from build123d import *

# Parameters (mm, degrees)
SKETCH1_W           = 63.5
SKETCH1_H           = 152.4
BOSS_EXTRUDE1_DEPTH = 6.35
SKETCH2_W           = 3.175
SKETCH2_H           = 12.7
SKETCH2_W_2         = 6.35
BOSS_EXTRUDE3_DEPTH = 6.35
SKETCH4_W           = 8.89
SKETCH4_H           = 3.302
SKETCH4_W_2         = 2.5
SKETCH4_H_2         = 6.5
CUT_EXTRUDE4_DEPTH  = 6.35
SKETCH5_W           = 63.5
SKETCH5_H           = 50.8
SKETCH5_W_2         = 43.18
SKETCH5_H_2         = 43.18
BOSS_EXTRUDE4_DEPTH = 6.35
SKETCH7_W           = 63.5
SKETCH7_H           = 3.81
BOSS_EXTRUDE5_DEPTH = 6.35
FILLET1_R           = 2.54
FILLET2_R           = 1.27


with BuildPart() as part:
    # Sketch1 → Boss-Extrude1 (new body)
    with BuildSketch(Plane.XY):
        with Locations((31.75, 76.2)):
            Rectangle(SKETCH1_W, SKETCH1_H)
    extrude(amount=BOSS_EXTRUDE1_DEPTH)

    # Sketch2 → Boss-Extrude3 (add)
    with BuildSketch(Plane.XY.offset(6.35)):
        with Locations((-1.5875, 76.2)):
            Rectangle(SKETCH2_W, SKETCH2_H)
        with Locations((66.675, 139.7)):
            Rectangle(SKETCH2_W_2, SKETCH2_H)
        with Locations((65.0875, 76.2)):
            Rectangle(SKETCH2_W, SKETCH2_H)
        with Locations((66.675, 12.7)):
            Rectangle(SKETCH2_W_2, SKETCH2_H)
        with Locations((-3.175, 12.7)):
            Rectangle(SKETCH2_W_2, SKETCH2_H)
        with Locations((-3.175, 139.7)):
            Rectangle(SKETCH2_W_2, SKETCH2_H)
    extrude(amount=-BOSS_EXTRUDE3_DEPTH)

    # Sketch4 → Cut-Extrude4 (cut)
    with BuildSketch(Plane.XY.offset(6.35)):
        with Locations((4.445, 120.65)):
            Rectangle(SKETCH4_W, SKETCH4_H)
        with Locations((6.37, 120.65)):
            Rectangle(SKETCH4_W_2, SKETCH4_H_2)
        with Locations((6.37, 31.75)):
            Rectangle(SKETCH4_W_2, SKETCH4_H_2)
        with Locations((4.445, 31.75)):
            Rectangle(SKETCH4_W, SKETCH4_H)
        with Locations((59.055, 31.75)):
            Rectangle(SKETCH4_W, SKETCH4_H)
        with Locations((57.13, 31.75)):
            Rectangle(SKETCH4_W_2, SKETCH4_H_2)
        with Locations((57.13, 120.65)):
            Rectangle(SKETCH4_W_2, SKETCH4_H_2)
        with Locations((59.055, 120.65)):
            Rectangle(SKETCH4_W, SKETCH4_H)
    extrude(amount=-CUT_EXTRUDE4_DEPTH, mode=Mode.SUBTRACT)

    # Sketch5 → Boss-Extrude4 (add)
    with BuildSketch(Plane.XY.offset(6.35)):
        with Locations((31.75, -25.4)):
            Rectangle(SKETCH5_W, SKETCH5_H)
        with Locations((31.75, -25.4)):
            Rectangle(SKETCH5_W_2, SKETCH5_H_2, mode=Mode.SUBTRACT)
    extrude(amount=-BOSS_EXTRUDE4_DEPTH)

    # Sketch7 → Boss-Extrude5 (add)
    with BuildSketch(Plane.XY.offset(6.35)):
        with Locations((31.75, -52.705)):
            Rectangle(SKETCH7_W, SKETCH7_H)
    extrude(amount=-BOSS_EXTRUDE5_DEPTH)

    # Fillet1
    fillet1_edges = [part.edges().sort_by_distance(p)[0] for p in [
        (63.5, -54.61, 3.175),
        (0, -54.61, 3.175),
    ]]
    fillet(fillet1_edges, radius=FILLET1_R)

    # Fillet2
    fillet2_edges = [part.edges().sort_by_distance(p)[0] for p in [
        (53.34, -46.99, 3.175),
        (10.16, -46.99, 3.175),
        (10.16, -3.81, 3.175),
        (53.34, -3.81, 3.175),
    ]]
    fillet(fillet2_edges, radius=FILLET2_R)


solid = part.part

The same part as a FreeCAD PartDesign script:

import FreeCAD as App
import Part
import Sketcher
from FreeCAD import Vector
Q = App.Units.Quantity


def edges_at(feature, points):
    """Names of the edges that pass closest to the given points."""
    edges = feature.Shape.Edges
    near = lambda p: min(range(len(edges)), key=lambda i: edges[i].distToShape(Part.Vertex(*p))[0])
    return sorted({f"Edge{near(p) + 1}" for p in points})


def add_polygon(sketch, points):
    """Adds a closed chain of lines whose ends are joined by coincident constraints."""
    first, n = sketch.GeometryCount, len(points)
    for a, b in zip(points, points[1:] + points[:1]):
        sketch.addGeometry(Part.LineSegment(App.Vector(*a, 0), App.Vector(*b, 0)), False)
    for i in range(n):
        sketch.addConstraint(Sketcher.Constraint("Coincident", first + i, 2, first + (i + 1) % n, 1))

doc = App.newDocument("Part")
body = doc.addObject("PartDesign::Body", "Body")

sketch1 = body.newObject("Sketcher::SketchObject", "Sketch")
sketch1.AttachmentSupport = (doc.getObject("XY_Plane"), [""])
sketch1.MapMode = "FlatFace"
add_polygon(sketch1, [(0, 152), (0, 0), (64, 0), (64, 152)])
sketch1.addConstraint([
    Sketcher.Constraint("Vertical", 0),
    Sketcher.Constraint("Horizontal", 1),
    Sketcher.Constraint("Vertical", 2),
    Sketcher.Constraint("Horizontal", 3),
    Sketcher.Constraint("Coincident", 0, 2, -1, 1),
    Sketcher.Constraint("DistanceY", 0, 2, 0, 1, Q("6 in")),
    Sketcher.Constraint("DistanceX", 1, 1, 1, 2, Q("2.5 in")),
])
pad1 = body.newObject("PartDesign::Pad", "Pad")
pad1.Profile = sketch1
pad1.Length = Q("0.25 in")

sketch2 = body.newObject("Sketcher::SketchObject", "Sketch001")
sketch2.AttachmentSupport = (doc.getObject("XY_Plane"), [""])
sketch2.MapMode = "FlatFace"
sketch2.AttachmentOffset = App.Placement(Vector(0, 0, 0.25 * 25.4), App.Rotation())
add_polygon(sketch2, [(-3.2, 82.5), (-3.2, 69.8), (0, 69.8), (0, 82.5)])
add_polygon(sketch2, [(63.5, 146.1), (63.5, 133.3), (69.8, 133.3), (69.8, 146.1)])
add_polygon(sketch2, [(63.5, 82.5), (63.5, 69.8), (66.7, 69.8), (66.7, 82.5)])
add_polygon(sketch2, [(63.5, 19.1), (63.5, 6.3), (69.8, 6.3), (69.8, 19.1)])
add_polygon(sketch2, [(-6.3, 19.1), (-6.3, 6.3), (0, 6.3), (0, 19.1)])
add_polygon(sketch2, [(-6.3, 146.1), (-6.3, 133.3), (0, 133.3), (0, 146.1)])
sketch2.addConstraint([
    Sketcher.Constraint("Vertical", 0),
    Sketcher.Constraint("Horizontal", 1),
    Sketcher.Constraint("Vertical", 2),
    Sketcher.Constraint("Horizontal", 3),
    Sketcher.Constraint("Vertical", 4),
    Sketcher.Constraint("Horizontal", 5),
    Sketcher.Constraint("Vertical", 6),
    Sketcher.Constraint("Horizontal", 7),
    Sketcher.Constraint("Vertical", 8),
    Sketcher.Constraint("Horizontal", 9),
    Sketcher.Constraint("Vertical", 10),
    Sketcher.Constraint("Horizontal", 11),
    Sketcher.Constraint("Vertical", 12),
    Sketcher.Constraint("Horizontal", 13),
    Sketcher.Constraint("Vertical", 14),
    Sketcher.Constraint("Horizontal", 15),
    Sketcher.Constraint("Vertical", 16),
    Sketcher.Constraint("Horizontal", 17),
    Sketcher.Constraint("Vertical", 18),
    Sketcher.Constraint("Horizontal", 19),
    Sketcher.Constraint("Vertical", 20),
    Sketcher.Constraint("Horizontal", 21),
    Sketcher.Constraint("Vertical", 22),
    Sketcher.Constraint("Horizontal", 23),
    Sketcher.Constraint("PointOnObject", 1, 2, -2),
    Sketcher.Constraint("PointOnObject", 17, 2, -2),
    Sketcher.Constraint("PointOnObject", 21, 2, -2),
    Sketcher.Constraint("Horizontal", 1, 2, 8, 2),
    Sketcher.Constraint("Horizontal", 3, 2, 10, 2),
    Sketcher.Constraint("Horizontal", 13, 2, 16, 2),
    Sketcher.Constraint("Horizontal", 15, 2, 18, 2),
    Sketcher.Constraint("Horizontal", 5, 2, 20, 2),
    Sketcher.Constraint("Horizontal", 7, 2, 22, 2),
    Sketcher.Constraint("Vertical", 7, 2, 8, 2),
    Sketcher.Constraint("Vertical", 11, 2, 12, 2),
    Sketcher.Constraint("Vertical", 6, 2, 13, 2),
    Sketcher.Constraint("Vertical", 19, 2, 20, 2),
    Sketcher.Constraint("Equal", 3, 9),
    Sketcher.Constraint("Equal", 15, 17),
    Sketcher.Constraint("Equal", 2, 4),
    Sketcher.Constraint("Equal", 10, 12),
    Sketcher.Constraint("DistanceY", 0, 2, 0, 1, Q("0.5 in")),
    Sketcher.Constraint("DistanceY", 2, 2, 4, 2, Q("2 in")),
    Sketcher.Constraint("DistanceY", 12, 2, 11, 2, Q("3 in")),
    Sketcher.Constraint("DistanceX", 16, 2, 13, 2, Q("3 in")),
    Sketcher.Constraint("DistanceX", 5, 1, 5, 2, Q("0.25 in")),
    Sketcher.Constraint("DistanceX", 1, 1, 1, 2, Q("0.125 in")),
    Sketcher.Constraint("DistanceY", -1, 1, 0, 2, Q("2.75 in")),
])
pad2 = body.newObject("PartDesign::Pad", "Pad001")
pad2.Profile = sketch2
pad2.Length = Q("0.25 in")
pad2.Reversed = True

sketch3 = body.newObject("Sketcher::SketchObject", "Sketch002")
sketch3.AttachmentSupport = (doc.getObject("XY_Plane"), [""])
sketch3.MapMode = "FlatFace"
sketch3.AttachmentOffset = App.Placement(Vector(0, 0, 0.25 * 25.4), App.Rotation())
add_polygon(sketch3, [(0, 122.3), (0, 119), (5.1, 119), (5.1, 117.4), (7.6, 117.4), (7.6, 119), (8.9, 119), (8.9, 122.3), (7.6, 122.3), (7.6, 123.9), (5.1, 123.9), (5.1, 122.3)])
add_polygon(sketch3, [(5.1, 30.1), (5.1, 28.5), (7.6, 28.5), (7.6, 30.1), (8.9, 30.1), (8.9, 33.4), (7.6, 33.4), (7.6, 35), (5.1, 35), (5.1, 33.4), (0, 33.4), (0, 30.1)])
add_polygon(sketch3, [(54.6, 33.4), (54.6, 30.1), (55.9, 30.1), (55.9, 28.5), (58.4, 28.5), (58.4, 30.1), (63.5, 30.1), (63.5, 33.4), (58.4, 33.4), (58.4, 35), (55.9, 35), (55.9, 33.4)])
add_polygon(sketch3, [(55.9, 119), (55.9, 117.4), (58.4, 117.4), (58.4, 119), (63.5, 119), (63.5, 122.3), (58.4, 122.3), (58.4, 123.9), (55.9, 123.9), (55.9, 122.3), (54.6, 122.3), (54.6, 119)])
sketch3.addConstraint([
    Sketcher.Constraint("Vertical", 0),
    Sketcher.Constraint("Horizontal", 1),
    Sketcher.Constraint("Vertical", 2),
    Sketcher.Constraint("Horizontal", 3),
    Sketcher.Constraint("Vertical", 4),
    Sketcher.Constraint("Horizontal", 5),
    Sketcher.Constraint("Vertical", 6),
    Sketcher.Constraint("Horizontal", 7),
    Sketcher.Constraint("Vertical", 8),
    Sketcher.Constraint("Horizontal", 9),
    Sketcher.Constraint("Vertical", 10),
    Sketcher.Constraint("Horizontal", 11),
    Sketcher.Constraint("Vertical", 12),
    Sketcher.Constraint("Horizontal", 13),
    Sketcher.Constraint("Vertical", 14),
    Sketcher.Constraint("Horizontal", 15),
    Sketcher.Constraint("Vertical", 16),
    Sketcher.Constraint("Horizontal", 17),
    Sketcher.Constraint("Vertical", 18),
    Sketcher.Constraint("Horizontal", 19),
    Sketcher.Constraint("Vertical", 20),
    Sketcher.Constraint("Horizontal", 21),
    Sketcher.Constraint("Vertical", 22),
    Sketcher.Constraint("Horizontal", 23),
    Sketcher.Constraint("Vertical", 24),
    Sketcher.Constraint("Horizontal", 25),
    Sketcher.Constraint("Vertical", 26),
    Sketcher.Constraint("Horizontal", 27),
    Sketcher.Constraint("Vertical", 28),
    Sketcher.Constraint("Horizontal", 29),
    Sketcher.Constraint("Vertical", 30),
    Sketcher.Constraint("Horizontal", 31),
    Sketcher.Constraint("Vertical", 32),
    Sketcher.Constraint("Horizontal", 33),
    Sketcher.Constraint("Vertical", 34),
    Sketcher.Constraint("Horizontal", 35),
    Sketcher.Constraint("Vertical", 36),
    Sketcher.Constraint("Horizontal", 37),
    Sketcher.Constraint("Vertical", 38),
    Sketcher.Constraint("Horizontal", 39),
    Sketcher.Constraint("Vertical", 40),
    Sketcher.Constraint("Horizontal", 41),
    Sketcher.Constraint("Vertical", 42),
    Sketcher.Constraint("Horizontal", 43),
    Sketcher.Constraint("Vertical", 44),
    Sketcher.Constraint("Horizontal", 45),
    Sketcher.Constraint("Vertical", 46),
    Sketcher.Constraint("Horizontal", 47),
    Sketcher.Constraint("PointOnObject", 0, 2, -2),
    Sketcher.Constraint("PointOnObject", 21, 2, -2),
    Sketcher.Constraint("Horizontal", 1, 2, 4, 2),
    Sketcher.Constraint("Horizontal", 7, 2, 10, 2),
    Sketcher.Constraint("Horizontal", 17, 2, 20, 2),
    Sketcher.Constraint("Horizontal", 15, 2, 22, 2),
    Sketcher.Constraint("Horizontal", 23, 2, 24, 2),
    Sketcher.Constraint("Horizontal", 13, 2, 26, 2),
    Sketcher.Constraint("Horizontal", 25, 2, 28, 2),
    Sketcher.Constraint("Horizontal", 21, 2, 30, 2),
    Sketcher.Constraint("Horizontal", 19, 2, 32, 2),
    Sketcher.Constraint("Horizontal", 31, 2, 34, 2),
    Sketcher.Constraint("Horizontal", 3, 2, 36, 2),
    Sketcher.Constraint("Horizontal", 5, 2, 38, 2),
    Sketcher.Constraint("Horizontal", 11, 2, 40, 2),
    Sketcher.Constraint("Horizontal", 9, 2, 42, 2),
    Sketcher.Constraint("Horizontal", 41, 2, 44, 2),
    Sketcher.Constraint("Horizontal", 39, 2, 46, 2),
    Sketcher.Constraint("Vertical", 4, 2, 7, 2),
    Sketcher.Constraint("Vertical", 2, 2, 9, 2),
    Sketcher.Constraint("Vertical", 10, 2, 12, 2),
    Sketcher.Constraint("Vertical", 8, 2, 13, 2),
    Sketcher.Constraint("Vertical", 6, 2, 15, 2),
    Sketcher.Constraint("Vertical", 14, 2, 17, 2),
    Sketcher.Constraint("Vertical", 12, 2, 19, 2),
    Sketcher.Constraint("Vertical", 28, 2, 31, 2),
    Sketcher.Constraint("Vertical", 26, 2, 33, 2),
    Sketcher.Constraint("Vertical", 34, 2, 36, 2),
    Sketcher.Constraint("Vertical", 32, 2, 37, 2),
    Sketcher.Constraint("Vertical", 30, 2, 39, 2),
    Sketcher.Constraint("Vertical", 38, 2, 41, 2),
    Sketcher.Constraint("Vertical", 36, 2, 43, 2),
    Sketcher.Constraint("Vertical", 35, 2, 45, 2),
    Sketcher.Constraint("Equal", 17, 25),
    Sketcher.Constraint("Equal", 19, 27),
    Sketcher.Constraint("Equal", 23, 29),
    Sketcher.Constraint("Equal", 4, 8),
    Sketcher.Constraint("Equal", 10, 12),
    Sketcher.Constraint("Equal", 6, 16),
    Sketcher.Constraint("Equal", 14, 18),
    Sketcher.Constraint("DistanceX", 5, 1, 5, 2, Q("0.05 in")),
    Sketcher.Constraint("DistanceY", 0, 2, 0, 1, Q("0.13 in")),
    Sketcher.Constraint("DistanceX", -1, 1, 3, 2, Q("0.3 in")),
    Sketcher.Constraint("DistanceX", -1, 1, 25, 2, Q("2.2 in")),
    Sketcher.Constraint("DistanceY", 12, 2, 2, 2, Q("3.5 in")),
    Sketcher.Constraint("DistanceY", -1, 1, 0, 2, Q("4.685 in")),
    Sketcher.Constraint("DistanceX", 1, 1, 1, 2, 5.12),
    Sketcher.Constraint("DistanceY", 2, 2, 2, 1, 1.599),
])
pocket1 = body.newObject("PartDesign::Pocket", "Pocket")
pocket1.Profile = sketch3
pocket1.Length = Q("0.25 in")

sketch4 = body.newObject("Sketcher::SketchObject", "Sketch003")
sketch4.AttachmentSupport = (doc.getObject("XY_Plane"), [""])
sketch4.MapMode = "FlatFace"
sketch4.AttachmentOffset = App.Placement(Vector(0, 0, 0.25 * 25.4), App.Rotation())
add_polygon(sketch4, [(0, 0), (0, -51), (64, -51), (64, 0)])
add_polygon(sketch4, [(53, -47), (10, -47), (10, -4), (53, -4)])
sketch4.addConstraint([
    Sketcher.Constraint("Vertical", 0),
    Sketcher.Constraint("Horizontal", 1),
    Sketcher.Constraint("Vertical", 2),
    Sketcher.Constraint("Horizontal", 3),
    Sketcher.Constraint("Horizontal", 4),
    Sketcher.Constraint("Vertical", 5),
    Sketcher.Constraint("Horizontal", 6),
    Sketcher.Constraint("Vertical", 7),
    Sketcher.Constraint("Coincident", 3, 2, -1, 1),
    Sketcher.Constraint("Equal", 6, 5),
    Sketcher.Constraint("DistanceY", 0, 2, 0, 1, Q("2 in")),
    Sketcher.Constraint("DistanceX", 1, 1, 1, 2, Q("2.5 in")),
    Sketcher.Constraint("DistanceX", 4, 2, 4, 1, Q("1.7 in")),
    Sketcher.Constraint("DistanceX", -1, 1, 4, 2, Q("0.4 in")),
    Sketcher.Constraint("DistanceY", 4, 2, -1, 1, Q("1.85 in")),
])
pad3 = body.newObject("PartDesign::Pad", "Pad002")
pad3.Profile = sketch4
pad3.Length = Q("0.25 in")
pad3.Reversed = True

sketch5 = body.newObject("Sketcher::SketchObject", "Sketch004")
sketch5.AttachmentSupport = (doc.getObject("XY_Plane"), [""])
sketch5.MapMode = "FlatFace"
sketch5.AttachmentOffset = App.Placement(Vector(0, 0, 0.25 * 25.4), App.Rotation())
add_polygon(sketch5, [(0, -50.8), (0, -54.6), (63.5, -54.6), (63.5, -50.8)])
sketch5.addConstraint([
    Sketcher.Constraint("Vertical", 0),
    Sketcher.Constraint("Horizontal", 1),
    Sketcher.Constraint("Vertical", 2),
    Sketcher.Constraint("Horizontal", 3),
    Sketcher.Constraint("PointOnObject", 0, 2, -2),
    Sketcher.Constraint("DistanceX", 1, 1, 1, 2, Q("2.5 in")),
    Sketcher.Constraint("DistanceY", 2, 2, -1, 1, Q("2 in")),
    Sketcher.Constraint("DistanceY", 0, 2, 0, 1, Q("0.15 in")),
])
pad4 = body.newObject("PartDesign::Pad", "Pad003")
pad4.Profile = sketch5
pad4.Length = Q("0.25 in")
pad4.Reversed = True
doc.recompute()

fillet = body.newObject("PartDesign::Fillet", "Fillet")
fillet.Base = (pad4, edges_at(pad4, [(63.5, -54.61, 3.175), (0, -54.61, 3.175)]))
fillet.Radius = Q("0.1 in")
doc.recompute()

fillet2 = body.newObject("PartDesign::Fillet", "Fillet001")
fillet2.Base = (fillet, edges_at(fillet, [
    (53.34, -46.99, 3.175),
    (10.16, -46.99, 3.175),
    (10.16, -3.81, 3.175),
    (53.34, -3.81, 3.175),
]))
fillet2.Radius = Q("0.05 in")

doc.recompute()
